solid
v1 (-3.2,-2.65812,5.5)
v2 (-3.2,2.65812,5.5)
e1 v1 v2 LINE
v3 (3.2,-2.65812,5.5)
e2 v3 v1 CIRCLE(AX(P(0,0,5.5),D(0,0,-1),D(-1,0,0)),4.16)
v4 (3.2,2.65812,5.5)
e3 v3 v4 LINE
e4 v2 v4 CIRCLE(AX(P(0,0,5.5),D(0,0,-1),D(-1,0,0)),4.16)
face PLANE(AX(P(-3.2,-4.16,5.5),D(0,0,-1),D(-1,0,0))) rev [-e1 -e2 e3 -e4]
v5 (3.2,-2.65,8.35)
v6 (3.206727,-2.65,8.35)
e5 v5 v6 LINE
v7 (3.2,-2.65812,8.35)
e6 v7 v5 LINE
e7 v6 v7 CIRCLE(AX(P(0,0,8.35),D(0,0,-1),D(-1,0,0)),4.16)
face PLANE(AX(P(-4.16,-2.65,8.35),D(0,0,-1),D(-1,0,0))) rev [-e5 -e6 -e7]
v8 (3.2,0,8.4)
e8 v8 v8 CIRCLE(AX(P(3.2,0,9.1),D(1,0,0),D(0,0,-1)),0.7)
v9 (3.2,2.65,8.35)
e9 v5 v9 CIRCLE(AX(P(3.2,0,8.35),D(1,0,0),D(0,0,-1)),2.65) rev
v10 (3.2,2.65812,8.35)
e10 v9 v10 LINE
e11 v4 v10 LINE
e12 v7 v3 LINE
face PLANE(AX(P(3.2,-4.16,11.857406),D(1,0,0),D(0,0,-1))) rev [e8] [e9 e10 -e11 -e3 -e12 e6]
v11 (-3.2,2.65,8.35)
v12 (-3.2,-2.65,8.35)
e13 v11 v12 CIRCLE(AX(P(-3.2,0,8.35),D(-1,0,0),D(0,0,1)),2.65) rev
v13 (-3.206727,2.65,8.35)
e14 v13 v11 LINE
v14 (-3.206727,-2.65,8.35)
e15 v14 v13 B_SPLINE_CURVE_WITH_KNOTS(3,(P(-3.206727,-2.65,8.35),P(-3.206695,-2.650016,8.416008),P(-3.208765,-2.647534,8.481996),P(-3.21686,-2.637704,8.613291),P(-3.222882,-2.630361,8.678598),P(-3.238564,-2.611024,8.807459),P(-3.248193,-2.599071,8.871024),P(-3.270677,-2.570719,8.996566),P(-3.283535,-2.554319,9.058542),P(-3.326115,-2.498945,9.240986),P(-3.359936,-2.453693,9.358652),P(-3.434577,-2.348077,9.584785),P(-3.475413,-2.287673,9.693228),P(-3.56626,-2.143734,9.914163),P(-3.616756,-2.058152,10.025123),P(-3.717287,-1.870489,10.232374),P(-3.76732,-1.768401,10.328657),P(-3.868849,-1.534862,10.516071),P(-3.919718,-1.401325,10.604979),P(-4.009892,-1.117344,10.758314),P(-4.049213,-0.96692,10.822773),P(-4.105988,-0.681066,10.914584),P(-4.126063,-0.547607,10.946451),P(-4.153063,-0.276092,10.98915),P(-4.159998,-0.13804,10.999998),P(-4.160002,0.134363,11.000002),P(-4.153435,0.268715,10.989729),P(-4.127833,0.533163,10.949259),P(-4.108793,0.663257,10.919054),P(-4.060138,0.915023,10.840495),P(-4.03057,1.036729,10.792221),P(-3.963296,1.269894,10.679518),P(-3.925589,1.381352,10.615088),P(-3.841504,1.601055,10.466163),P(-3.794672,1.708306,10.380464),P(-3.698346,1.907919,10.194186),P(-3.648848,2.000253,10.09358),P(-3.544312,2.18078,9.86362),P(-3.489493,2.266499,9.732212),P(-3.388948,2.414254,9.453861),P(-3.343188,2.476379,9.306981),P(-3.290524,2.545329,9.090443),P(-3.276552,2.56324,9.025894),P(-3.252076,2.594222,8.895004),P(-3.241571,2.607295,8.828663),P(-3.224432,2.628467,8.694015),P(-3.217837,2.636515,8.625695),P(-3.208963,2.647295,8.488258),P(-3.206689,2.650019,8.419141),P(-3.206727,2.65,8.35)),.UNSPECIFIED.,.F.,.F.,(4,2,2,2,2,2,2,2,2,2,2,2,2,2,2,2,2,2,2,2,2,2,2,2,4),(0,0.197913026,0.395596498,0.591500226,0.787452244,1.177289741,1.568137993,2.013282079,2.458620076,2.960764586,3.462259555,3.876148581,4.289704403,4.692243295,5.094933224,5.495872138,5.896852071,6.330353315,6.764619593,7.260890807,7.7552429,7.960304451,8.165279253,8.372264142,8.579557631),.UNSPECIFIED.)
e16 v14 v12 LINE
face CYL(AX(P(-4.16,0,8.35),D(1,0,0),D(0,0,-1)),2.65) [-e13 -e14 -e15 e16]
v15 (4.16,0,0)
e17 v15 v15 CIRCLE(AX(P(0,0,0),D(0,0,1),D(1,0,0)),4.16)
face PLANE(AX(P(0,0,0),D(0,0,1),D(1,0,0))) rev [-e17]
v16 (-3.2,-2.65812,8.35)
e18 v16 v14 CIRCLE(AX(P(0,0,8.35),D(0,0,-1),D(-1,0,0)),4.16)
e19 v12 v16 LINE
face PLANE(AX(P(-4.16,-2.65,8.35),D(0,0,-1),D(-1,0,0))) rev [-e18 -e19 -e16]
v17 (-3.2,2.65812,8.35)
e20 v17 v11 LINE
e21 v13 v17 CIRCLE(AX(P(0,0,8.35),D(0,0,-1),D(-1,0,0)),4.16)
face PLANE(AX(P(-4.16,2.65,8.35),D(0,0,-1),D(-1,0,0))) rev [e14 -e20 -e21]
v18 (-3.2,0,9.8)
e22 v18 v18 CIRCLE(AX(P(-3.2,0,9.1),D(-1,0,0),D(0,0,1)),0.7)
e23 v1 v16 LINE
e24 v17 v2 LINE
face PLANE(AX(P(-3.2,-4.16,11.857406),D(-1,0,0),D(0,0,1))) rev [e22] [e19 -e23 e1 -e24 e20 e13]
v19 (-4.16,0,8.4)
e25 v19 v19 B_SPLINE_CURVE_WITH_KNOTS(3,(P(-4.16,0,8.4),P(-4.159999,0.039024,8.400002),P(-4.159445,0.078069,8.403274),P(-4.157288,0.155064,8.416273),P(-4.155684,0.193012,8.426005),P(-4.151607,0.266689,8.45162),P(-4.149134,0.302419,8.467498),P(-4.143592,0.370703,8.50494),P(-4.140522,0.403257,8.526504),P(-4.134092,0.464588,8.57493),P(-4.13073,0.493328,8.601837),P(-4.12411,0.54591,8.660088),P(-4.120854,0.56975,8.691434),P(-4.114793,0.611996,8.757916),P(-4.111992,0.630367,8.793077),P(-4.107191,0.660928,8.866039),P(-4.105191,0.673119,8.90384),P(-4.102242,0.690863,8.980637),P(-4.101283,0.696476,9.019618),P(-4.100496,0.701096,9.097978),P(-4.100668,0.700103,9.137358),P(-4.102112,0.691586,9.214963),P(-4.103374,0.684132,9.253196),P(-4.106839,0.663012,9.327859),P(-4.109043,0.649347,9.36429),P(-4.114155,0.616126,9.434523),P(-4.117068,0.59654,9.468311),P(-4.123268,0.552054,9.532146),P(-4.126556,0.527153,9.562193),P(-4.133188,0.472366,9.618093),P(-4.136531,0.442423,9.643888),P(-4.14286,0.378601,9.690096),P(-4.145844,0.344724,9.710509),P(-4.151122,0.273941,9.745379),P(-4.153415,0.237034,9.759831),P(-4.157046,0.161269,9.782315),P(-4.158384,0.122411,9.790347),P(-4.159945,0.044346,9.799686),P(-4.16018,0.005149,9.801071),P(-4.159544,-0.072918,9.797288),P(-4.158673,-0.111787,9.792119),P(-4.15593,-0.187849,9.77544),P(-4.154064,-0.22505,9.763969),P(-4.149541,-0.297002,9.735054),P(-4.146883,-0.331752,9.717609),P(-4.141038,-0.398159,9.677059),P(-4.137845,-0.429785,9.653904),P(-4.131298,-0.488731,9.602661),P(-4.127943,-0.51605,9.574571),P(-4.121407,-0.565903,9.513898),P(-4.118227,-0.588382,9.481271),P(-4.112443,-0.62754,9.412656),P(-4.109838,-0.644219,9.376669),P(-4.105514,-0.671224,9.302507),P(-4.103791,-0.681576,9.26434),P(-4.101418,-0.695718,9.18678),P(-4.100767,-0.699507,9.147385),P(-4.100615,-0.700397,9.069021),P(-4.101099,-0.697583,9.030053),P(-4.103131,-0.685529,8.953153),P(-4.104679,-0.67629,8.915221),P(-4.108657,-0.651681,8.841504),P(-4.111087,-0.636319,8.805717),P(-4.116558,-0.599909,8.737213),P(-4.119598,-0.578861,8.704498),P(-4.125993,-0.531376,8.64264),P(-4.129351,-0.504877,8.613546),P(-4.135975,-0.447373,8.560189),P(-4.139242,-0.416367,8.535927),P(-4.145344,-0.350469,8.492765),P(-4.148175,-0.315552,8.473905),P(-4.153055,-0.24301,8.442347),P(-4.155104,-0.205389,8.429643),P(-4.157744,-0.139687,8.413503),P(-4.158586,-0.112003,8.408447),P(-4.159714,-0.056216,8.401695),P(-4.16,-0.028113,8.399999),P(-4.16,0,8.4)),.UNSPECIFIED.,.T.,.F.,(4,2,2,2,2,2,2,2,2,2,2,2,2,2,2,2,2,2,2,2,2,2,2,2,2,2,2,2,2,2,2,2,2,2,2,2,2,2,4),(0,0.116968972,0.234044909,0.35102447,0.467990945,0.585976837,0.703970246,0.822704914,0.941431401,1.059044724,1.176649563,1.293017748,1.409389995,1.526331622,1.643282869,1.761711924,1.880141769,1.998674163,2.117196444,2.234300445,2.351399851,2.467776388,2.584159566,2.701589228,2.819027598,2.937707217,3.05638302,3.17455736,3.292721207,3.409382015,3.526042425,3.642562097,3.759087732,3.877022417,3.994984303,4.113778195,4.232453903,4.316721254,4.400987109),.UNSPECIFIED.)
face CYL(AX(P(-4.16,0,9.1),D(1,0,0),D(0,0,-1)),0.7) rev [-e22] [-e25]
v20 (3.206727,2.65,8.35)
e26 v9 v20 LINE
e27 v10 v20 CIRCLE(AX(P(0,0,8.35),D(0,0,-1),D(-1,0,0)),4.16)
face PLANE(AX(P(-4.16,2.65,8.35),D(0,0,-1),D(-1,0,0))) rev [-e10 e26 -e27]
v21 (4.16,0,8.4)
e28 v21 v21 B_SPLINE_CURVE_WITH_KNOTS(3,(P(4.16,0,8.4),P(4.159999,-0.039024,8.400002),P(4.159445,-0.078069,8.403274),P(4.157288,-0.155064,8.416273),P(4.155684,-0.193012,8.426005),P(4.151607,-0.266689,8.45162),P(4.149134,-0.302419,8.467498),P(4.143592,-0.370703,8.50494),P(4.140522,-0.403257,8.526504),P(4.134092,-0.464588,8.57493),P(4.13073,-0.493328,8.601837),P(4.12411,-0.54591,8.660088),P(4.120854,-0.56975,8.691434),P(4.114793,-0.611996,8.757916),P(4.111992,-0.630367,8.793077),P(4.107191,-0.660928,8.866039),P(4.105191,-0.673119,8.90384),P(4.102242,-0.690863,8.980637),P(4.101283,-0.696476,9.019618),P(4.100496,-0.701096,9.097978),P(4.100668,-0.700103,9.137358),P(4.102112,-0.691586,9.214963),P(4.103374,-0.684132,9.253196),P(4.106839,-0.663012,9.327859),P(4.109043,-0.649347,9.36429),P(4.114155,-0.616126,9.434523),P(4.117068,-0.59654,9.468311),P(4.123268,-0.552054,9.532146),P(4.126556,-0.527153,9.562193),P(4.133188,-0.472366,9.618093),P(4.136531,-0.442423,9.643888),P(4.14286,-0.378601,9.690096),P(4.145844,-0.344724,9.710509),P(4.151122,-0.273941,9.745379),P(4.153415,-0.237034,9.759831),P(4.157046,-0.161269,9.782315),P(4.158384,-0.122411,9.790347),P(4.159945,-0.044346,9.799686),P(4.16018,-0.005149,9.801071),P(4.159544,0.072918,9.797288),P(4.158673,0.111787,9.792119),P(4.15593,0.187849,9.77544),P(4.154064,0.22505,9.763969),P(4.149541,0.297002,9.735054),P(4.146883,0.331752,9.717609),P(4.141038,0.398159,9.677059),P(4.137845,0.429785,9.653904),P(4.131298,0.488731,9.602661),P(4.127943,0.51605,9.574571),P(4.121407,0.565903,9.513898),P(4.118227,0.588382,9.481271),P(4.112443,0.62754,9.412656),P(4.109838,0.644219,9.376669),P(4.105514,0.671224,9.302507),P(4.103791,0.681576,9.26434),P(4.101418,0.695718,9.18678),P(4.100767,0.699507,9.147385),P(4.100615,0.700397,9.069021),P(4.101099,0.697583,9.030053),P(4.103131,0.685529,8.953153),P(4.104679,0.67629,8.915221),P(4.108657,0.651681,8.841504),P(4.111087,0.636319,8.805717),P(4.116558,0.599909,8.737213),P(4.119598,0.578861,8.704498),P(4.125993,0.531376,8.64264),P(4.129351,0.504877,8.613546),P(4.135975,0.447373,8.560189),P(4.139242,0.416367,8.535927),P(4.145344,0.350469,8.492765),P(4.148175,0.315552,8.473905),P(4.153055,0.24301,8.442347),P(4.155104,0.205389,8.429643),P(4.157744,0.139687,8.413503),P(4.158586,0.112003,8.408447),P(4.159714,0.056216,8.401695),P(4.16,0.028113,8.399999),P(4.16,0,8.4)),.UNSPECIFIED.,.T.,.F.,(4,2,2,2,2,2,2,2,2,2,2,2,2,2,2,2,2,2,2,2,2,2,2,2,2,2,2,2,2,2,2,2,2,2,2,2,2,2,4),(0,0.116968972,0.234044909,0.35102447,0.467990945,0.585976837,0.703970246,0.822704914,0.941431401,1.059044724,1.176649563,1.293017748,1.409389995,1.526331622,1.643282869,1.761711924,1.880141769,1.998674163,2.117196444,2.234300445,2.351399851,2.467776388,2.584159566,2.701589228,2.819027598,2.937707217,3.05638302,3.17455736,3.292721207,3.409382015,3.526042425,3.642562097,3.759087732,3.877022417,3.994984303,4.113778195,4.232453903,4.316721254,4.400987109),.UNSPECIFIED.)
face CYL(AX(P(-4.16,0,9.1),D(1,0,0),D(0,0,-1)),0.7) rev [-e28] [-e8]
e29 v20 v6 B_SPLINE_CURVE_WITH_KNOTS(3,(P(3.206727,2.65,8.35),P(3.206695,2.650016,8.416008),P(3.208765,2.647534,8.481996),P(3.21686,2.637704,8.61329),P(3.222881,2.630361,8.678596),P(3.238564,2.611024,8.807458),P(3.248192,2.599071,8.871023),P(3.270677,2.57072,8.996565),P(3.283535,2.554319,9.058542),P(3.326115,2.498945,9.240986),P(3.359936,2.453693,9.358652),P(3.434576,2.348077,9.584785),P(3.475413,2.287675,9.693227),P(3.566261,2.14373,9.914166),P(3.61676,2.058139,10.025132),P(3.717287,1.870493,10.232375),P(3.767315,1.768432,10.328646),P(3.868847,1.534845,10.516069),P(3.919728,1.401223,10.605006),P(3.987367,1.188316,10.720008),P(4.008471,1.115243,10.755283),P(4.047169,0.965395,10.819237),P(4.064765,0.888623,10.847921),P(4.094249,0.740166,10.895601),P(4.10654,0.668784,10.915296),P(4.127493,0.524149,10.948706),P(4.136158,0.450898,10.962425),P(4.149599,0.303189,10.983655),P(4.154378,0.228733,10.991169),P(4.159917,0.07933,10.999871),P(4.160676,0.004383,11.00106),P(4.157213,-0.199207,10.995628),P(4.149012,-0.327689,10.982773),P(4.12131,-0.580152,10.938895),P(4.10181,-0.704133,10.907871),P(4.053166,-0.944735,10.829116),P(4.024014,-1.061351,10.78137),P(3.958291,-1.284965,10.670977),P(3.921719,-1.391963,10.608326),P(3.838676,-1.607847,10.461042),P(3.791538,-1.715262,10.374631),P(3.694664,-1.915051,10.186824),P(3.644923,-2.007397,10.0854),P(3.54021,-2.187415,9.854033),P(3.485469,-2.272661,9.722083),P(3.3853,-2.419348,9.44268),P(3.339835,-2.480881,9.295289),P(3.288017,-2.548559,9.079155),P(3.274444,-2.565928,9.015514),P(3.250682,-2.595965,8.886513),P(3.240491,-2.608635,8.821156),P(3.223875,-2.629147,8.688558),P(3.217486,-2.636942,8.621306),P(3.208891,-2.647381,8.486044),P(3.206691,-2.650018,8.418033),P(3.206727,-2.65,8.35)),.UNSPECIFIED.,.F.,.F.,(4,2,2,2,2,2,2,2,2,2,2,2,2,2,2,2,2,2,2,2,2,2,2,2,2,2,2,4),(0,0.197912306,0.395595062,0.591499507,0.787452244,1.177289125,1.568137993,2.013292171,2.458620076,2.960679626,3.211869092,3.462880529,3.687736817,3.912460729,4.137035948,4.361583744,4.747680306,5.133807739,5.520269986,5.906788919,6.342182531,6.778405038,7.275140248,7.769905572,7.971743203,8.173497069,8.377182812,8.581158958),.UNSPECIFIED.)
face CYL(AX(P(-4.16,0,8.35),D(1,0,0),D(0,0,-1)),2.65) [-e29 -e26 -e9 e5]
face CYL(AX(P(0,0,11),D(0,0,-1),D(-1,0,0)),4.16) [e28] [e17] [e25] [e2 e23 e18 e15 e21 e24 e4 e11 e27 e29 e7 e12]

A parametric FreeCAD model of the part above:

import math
import FreeCAD as App
import Part
import Sketcher
from FreeCAD import Vector

doc = App.newDocument("Part")
body = doc.addObject("PartDesign::Body", "Body")

# Sketch on XY plane
sketch1 = doc.addObject("Sketcher::SketchObject", "Sketch")
body.addObject(sketch1)
sketch1.AttachmentSupport = (doc.XY_Plane, [""])
sketch1.MapMode = "FlatFace"
sketch1.addGeometry(Part.Circle(Vector(0, 0, 0), Vector(0, 0, 1), 4.2), False)
sketch1.addConstraint(Sketcher.Constraint("Coincident", 0, 3, -1, 1))
sketch1.addConstraint(Sketcher.Constraint("Diameter", 0, 8.32))
pad1 = doc.addObject("PartDesign::Pad", "Pad")
body.addObject(pad1)
pad1.Profile = sketch1
pad1.Length = 11

# Sketch on XZ plane
sketch2 = doc.addObject("Sketcher::SketchObject", "Sketch001")
body.addObject(sketch2)
sketch2.AttachmentSupport = (doc.XZ_Plane, [""])
sketch2.MapMode = "FlatFace"
sketch2.addGeometry(Part.LineSegment(Vector(-3, 6, 0), Vector(-3, 12, 0)), False)
sketch2.addGeometry(Part.LineSegment(Vector(-3, 12, 0), Vector(3, 12, 0)), False)
sketch2.addGeometry(Part.LineSegment(Vector(3, 12, 0), Vector(3, 6, 0)), False)
sketch2.addGeometry(Part.LineSegment(Vector(3, 6, 0), Vector(-3, 6, 0)), False)
sketch2.addConstraint(Sketcher.Constraint("Coincident", 0, 2, 1, 1))
sketch2.addConstraint(Sketcher.Constraint("Coincident", 1, 2, 2, 1))
sketch2.addConstraint(Sketcher.Constraint("Coincident", 2, 2, 3, 1))
sketch2.addConstraint(Sketcher.Constraint("Coincident", 3, 2, 0, 1))
sketch2.addConstraint(Sketcher.Constraint("Vertical", 0))
sketch2.addConstraint(Sketcher.Constraint("Horizontal", 1))
sketch2.addConstraint(Sketcher.Constraint("Vertical", 2))
sketch2.addConstraint(Sketcher.Constraint("Horizontal", 3))
sketch2.addConstraint(Sketcher.Constraint("DistanceX", 1, 1, 1, 2, 6.4))
sketch2.addConstraint(Sketcher.Constraint("DistanceX", 0, 2, -1, 1, 3.2))
sketch2.addConstraint(Sketcher.Constraint("DistanceY", -1, 1, 2, 2, 5.5))
sketch2.addConstraint(Sketcher.Constraint("DistanceY", 0, 1, 0, 2, 6.357406))
pocket1 = doc.addObject("PartDesign::Pocket", "Pocket")
body.addObject(pocket1)
pocket1.Profile = sketch2
pocket1.Type = "ThroughAll"
pocket1.Midplane = True

# Sketch on YZ plane
sketch3 = doc.addObject("Sketcher::SketchObject", "Sketch002")
body.addObject(sketch3)
sketch3.AttachmentSupport = (doc.YZ_Plane, [""])
sketch3.MapMode = "FlatFace"
sketch3.addGeometry(Part.LineSegment(Vector(2.6, 8.3, 0), Vector(3.8, 8.3, 0)), False)
sketch3.addGeometry(Part.LineSegment(Vector(3.8, 8.3, 0), Vector(3.8, 12.8, 0)), False)
sketch3.addGeometry(Part.LineSegment(Vector(3.8, 12.8, 0), Vector(-4.6, 12.8, 0)), False)
sketch3.addGeometry(Part.LineSegment(Vector(-4.6, 12.8, 0), Vector(-4.5, 8.3, 0)), False)
sketch3.addGeometry(Part.LineSegment(Vector(-4.5, 8.3, 0), Vector(-2.6, 8.3, 0)), False)
sketch3.addGeometry(Part.ArcOfCircle(Part.Circle(Vector(0, 8.3, 0), Vector(0, 0, 1), 2.6), math.radians(0), math.radians(180)), False)
sketch3.addConstraint(Sketcher.Constraint("Coincident", 0, 2, 1, 1))
sketch3.addConstraint(Sketcher.Constraint("Coincident", 1, 2, 2, 1))
sketch3.addConstraint(Sketcher.Constraint("Coincident", 2, 2, 3, 1))
sketch3.addConstraint(Sketcher.Constraint("Coincident", 3, 2, 4, 1))
sketch3.addConstraint(Sketcher.Constraint("Coincident", 4, 2, 5, 2))
sketch3.addConstraint(Sketcher.Constraint("Coincident", 5, 1, 0, 1))
sketch3.addConstraint(Sketcher.Constraint("Horizontal", 0))
sketch3.addConstraint(Sketcher.Constraint("Vertical", 1))
sketch3.addConstraint(Sketcher.Constraint("Horizontal", 2))
sketch3.addConstraint(Sketcher.Constraint("Horizontal", 4))
sketch3.addConstraint(Sketcher.Constraint("Symmetric", 4, 2, 5, 1, -2))
sketch3.addConstraint(Sketcher.Constraint("Horizontal", 5, 3, 0, 2))
sketch3.addConstraint(Sketcher.Constraint("Radius", 5, 2.65))
sketch3.addConstraint(Sketcher.Constraint("DistanceY", -1, 1, 5, 3, 8.35))
sketch3.addConstraint(Sketcher.Constraint("DistanceX", 0, 1, 0, 2, 1.186722))
sketch3.addConstraint(Sketcher.Constraint("DistanceX", 4, 1, 4, 2, 1.842231))
sketch3.addConstraint(Sketcher.Constraint("Distance", 3, 4.473582))
sketch3.addConstraint(Sketcher.Constraint("DistanceX", 2, 2, 2, 1, 8.441886))
pocket2 = doc.addObject("PartDesign::Pocket", "Pocket001")
body.addObject(pocket2)
pocket2.Profile = sketch3
pocket2.Type = "ThroughAll"
pocket2.Midplane = True

# Sketch on YZ plane
sketch4 = doc.addObject("Sketcher::SketchObject", "Sketch003")
body.addObject(sketch4)
sketch4.AttachmentSupport = (doc.YZ_Plane, [""])
sketch4.MapMode = "FlatFace"
sketch4.addGeometry(Part.Circle(Vector(0, 9.1, 0), Vector(0, 0, 1), 0.7), False)
sketch4.addConstraint(Sketcher.Constraint("PointOnObject", 0, 3, -2))
sketch4.addConstraint(Sketcher.Constraint("Diameter", 0, 1.4))
sketch4.addConstraint(Sketcher.Constraint("DistanceY", -1, 1, 0, 3, 9.1))
pocket3 = doc.addObject("PartDesign::Pocket", "Pocket002")
body.addObject(pocket3)
pocket3.Profile = sketch4
pocket3.Type = "ThroughAll"
pocket3.Midplane = True

doc.recompute()
